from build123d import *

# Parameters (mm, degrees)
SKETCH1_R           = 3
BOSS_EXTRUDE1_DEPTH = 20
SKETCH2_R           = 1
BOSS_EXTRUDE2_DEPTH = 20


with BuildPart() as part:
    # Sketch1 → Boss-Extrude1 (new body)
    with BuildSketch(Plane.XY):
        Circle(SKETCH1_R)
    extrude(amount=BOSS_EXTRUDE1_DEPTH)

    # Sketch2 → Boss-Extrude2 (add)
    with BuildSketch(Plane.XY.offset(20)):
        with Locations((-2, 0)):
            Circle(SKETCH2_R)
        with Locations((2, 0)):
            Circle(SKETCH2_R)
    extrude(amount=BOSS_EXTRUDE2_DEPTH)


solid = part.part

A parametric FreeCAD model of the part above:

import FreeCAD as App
import Part
import Sketcher
from FreeCAD import Vector

doc = App.newDocument("Part")
body = doc.addObject("PartDesign::Body", "Body")

# Sketch on XY plane
sketch1 = doc.addObject("Sketcher::SketchObject", "Sketch")
body.addObject(sketch1)
sketch1.AttachmentSupport = (doc.XY_Plane, [""])
sketch1.MapMode = "FlatFace"
sketch1.addGeometry(Part.Circle(Vector(0, 0, 0), Vector(0, 0, 1), 3), False)
sketch1.addConstraint([
    Sketcher.Constraint("Coincident", 0, 3, -1, 1),
    Sketcher.Constraint("Diameter", 0, 6.0),
])
pad1 = doc.addObject("PartDesign::Pad", "Pad")
body.addObject(pad1)
pad1.Profile = sketch1
pad1.Length = 20

# Sketch on XY plane
sketch2 = doc.addObject("Sketcher::SketchObject", "Sketch001")
body.addObject(sketch2)
sketch2.AttachmentSupport = (doc.XY_Plane, [""])
sketch2.MapMode = "FlatFace"
sketch2.AttachmentOffset = App.Placement(Vector(0, 0, 20), App.Rotation())
sketch2.addGeometry([
    Part.Circle(Vector(-2, 0, 0), Vector(0, 0, 1), 1),
    Part.Circle(Vector(2, 0, 0), Vector(0, 0, 1), 1),
], False)
sketch2.addConstraint([
    Sketcher.Constraint("Equal", 0, 1),
    Sketcher.Constraint("Symmetric", 0, 3, 1, 3, -1, 1),
    Sketcher.Constraint("PointOnObject", 0, 3, -1),
    Sketcher.Constraint("Diameter", 0, 2.0),
    Sketcher.Constraint("DistanceX", 0, 3, -1, 1, 2.0),
])
pad2 = doc.addObject("PartDesign::Pad", "Pad001")
body.addObject(pad2)
pad2.Profile = sketch2
pad2.Length = 20

doc.recompute()
